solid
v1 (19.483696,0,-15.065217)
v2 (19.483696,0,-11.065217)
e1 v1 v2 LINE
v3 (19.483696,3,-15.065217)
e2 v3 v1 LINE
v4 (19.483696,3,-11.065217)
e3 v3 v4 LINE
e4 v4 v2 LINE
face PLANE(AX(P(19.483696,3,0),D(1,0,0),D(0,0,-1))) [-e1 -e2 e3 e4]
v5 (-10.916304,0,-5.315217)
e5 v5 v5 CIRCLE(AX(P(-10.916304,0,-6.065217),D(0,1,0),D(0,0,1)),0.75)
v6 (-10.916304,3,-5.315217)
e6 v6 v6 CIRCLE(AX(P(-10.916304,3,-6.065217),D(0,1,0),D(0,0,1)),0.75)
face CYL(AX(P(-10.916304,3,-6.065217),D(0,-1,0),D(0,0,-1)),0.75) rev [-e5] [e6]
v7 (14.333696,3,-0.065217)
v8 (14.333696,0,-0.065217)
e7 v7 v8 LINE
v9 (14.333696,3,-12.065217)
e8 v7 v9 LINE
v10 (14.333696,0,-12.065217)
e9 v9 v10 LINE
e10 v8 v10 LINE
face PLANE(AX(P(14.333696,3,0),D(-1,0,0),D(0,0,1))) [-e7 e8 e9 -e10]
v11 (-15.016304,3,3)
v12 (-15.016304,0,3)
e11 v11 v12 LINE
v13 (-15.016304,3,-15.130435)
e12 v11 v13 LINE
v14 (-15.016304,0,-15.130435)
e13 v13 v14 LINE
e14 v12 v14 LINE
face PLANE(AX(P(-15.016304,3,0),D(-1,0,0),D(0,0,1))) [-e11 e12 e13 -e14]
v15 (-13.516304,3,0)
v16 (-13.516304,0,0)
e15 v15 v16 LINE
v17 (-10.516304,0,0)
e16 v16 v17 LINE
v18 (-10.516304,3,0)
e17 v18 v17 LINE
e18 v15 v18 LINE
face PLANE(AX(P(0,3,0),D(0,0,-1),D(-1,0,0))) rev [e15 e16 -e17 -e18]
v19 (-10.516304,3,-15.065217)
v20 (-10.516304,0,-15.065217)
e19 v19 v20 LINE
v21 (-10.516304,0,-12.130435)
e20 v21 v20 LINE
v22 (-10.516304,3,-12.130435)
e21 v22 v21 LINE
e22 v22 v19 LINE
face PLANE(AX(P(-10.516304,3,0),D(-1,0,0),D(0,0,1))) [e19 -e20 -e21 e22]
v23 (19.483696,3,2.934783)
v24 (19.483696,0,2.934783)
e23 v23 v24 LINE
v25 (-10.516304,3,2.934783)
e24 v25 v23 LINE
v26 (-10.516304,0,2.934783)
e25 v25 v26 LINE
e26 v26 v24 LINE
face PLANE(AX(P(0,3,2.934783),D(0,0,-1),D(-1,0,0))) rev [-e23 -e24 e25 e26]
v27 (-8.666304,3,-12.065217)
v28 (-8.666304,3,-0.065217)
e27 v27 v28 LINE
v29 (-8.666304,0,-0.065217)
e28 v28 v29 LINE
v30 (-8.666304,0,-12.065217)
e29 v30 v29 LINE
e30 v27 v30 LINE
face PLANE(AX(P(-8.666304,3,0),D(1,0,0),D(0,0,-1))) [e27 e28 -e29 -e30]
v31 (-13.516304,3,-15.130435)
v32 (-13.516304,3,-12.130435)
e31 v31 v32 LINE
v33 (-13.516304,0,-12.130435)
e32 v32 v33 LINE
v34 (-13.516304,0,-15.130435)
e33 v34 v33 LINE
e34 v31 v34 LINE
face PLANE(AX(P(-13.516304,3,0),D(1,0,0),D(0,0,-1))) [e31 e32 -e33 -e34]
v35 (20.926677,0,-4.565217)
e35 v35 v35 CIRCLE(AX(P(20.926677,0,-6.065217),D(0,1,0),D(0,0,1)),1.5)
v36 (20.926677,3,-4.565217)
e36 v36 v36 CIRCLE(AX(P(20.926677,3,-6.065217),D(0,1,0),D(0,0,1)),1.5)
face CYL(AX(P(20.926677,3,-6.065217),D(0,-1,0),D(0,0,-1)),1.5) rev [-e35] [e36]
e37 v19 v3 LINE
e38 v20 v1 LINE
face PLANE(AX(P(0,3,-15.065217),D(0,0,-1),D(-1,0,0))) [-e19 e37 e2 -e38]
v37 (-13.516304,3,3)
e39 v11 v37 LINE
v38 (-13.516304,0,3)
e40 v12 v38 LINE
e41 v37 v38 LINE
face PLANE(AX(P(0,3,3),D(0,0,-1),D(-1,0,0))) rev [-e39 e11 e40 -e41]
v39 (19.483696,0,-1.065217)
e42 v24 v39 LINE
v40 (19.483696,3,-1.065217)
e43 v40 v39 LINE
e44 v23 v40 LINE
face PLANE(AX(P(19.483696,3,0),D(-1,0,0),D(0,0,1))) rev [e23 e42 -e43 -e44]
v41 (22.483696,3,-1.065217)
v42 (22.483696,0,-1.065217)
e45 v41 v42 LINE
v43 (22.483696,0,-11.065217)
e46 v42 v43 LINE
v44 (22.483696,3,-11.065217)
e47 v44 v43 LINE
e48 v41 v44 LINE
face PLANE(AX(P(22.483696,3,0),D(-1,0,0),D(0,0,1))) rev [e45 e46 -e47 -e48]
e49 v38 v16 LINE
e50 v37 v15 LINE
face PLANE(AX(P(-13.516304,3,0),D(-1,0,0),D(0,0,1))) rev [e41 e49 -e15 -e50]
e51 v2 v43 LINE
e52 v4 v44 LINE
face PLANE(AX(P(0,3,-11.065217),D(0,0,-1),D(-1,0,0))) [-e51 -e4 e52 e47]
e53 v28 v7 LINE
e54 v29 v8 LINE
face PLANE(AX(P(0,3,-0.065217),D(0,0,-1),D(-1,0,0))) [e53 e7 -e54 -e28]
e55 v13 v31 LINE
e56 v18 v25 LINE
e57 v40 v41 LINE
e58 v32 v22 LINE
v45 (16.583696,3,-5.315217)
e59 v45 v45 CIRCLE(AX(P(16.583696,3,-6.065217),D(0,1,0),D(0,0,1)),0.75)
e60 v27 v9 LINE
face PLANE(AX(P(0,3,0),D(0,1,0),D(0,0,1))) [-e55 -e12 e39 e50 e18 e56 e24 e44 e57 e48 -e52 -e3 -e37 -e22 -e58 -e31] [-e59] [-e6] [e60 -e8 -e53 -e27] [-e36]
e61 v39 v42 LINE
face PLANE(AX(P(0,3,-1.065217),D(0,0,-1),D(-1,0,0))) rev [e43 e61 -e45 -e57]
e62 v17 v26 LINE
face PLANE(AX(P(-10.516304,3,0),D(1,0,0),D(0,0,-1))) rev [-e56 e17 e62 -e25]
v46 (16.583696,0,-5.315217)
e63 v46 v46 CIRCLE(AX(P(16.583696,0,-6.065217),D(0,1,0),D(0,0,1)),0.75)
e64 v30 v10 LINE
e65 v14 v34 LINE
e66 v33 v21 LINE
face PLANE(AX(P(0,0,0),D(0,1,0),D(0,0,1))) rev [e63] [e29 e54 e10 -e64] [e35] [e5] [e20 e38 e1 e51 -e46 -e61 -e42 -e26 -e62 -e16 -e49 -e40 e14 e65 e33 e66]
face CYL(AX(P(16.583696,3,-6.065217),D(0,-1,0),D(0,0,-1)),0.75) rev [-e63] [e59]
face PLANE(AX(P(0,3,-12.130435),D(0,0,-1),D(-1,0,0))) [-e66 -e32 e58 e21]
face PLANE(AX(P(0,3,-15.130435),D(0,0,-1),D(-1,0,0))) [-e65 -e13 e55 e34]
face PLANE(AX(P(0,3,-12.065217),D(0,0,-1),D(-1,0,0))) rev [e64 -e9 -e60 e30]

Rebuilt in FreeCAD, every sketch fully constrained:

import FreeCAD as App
import Part
import Sketcher
from FreeCAD import Vector

doc = App.newDocument("Part")
body = doc.addObject("PartDesign::Body", "Body")

# Sketch on XZ plane
sketch1 = body.newObject("Sketcher::SketchObject", "Sketch")
sketch1.AttachmentSupport = (doc.getObject("XZ_Plane"), [""])
sketch1.MapMode = "FlatFace"
sketch1.addGeometry([
    Part.LineSegment(Vector(-15.016304, -15.130435, 0), Vector(-15.016304, 3, 0)),  # 0
    Part.LineSegment(Vector(-15.016304, 3, 0), Vector(-13.516304, 3, 0)),  # 1
    Part.LineSegment(Vector(-13.516304, 3, 0), Vector(-13.516304, 0, 0)),  # 2
    Part.LineSegment(Vector(-13.516304, 0, 0), Vector(-10.516304, 0, 0)),  # 3
    Part.LineSegment(Vector(-10.516304, 0, 0), Vector(-10.516304, 2.934783, 0)),  # 4
    Part.LineSegment(Vector(-10.516304, 2.934783, 0), Vector(19.483696, 2.934783, 0)),  # 5
    Part.LineSegment(Vector(19.483696, 2.934783, 0), Vector(19.483696, -1.065217, 0)),  # 6
    Part.LineSegment(Vector(19.483696, -1.065217, 0), Vector(22.483696, -1.065217, 0)),  # 7
    Part.LineSegment(Vector(22.483696, -1.065217, 0), Vector(22.483696, -11.065217, 0)),  # 8
    Part.LineSegment(Vector(22.483696, -11.065217, 0), Vector(19.483696, -11.065217, 0)),  # 9
    Part.LineSegment(Vector(19.483696, -11.065217, 0), Vector(19.483696, -15.065217, 0)),  # 10
    Part.LineSegment(Vector(19.483696, -15.065217, 0), Vector(-10.516304, -15.065217, 0)),  # 11
    Part.LineSegment(Vector(-10.516304, -15.065217, 0), Vector(-10.516304, -12.130435, 0)),  # 12
    Part.LineSegment(Vector(-10.516304, -12.130435, 0), Vector(-13.516304, -12.130435, 0)),  # 13
    Part.LineSegment(Vector(-13.516304, -12.130435, 0), Vector(-13.516304, -15.130435, 0)),  # 14
    Part.LineSegment(Vector(-13.516304, -15.130435, 0), Vector(-15.016304, -15.130435, 0)),  # 15
    Part.Circle(Vector(20.926677, -6.065217, 0), Vector(0, 0, 1), 1.5),  # 16
    Part.Circle(Vector(16.583696, -6.065217, 0), Vector(0, 0, 1), 0.75),  # 17
    Part.LineSegment(Vector(-8.666304, -0.065217, 0), Vector(-8.666304, -12.065217, 0)),  # 18
    Part.LineSegment(Vector(-8.666304, -12.065217, 0), Vector(14.333696, -12.065217, 0)),  # 19
    Part.LineSegment(Vector(14.333696, -12.065217, 0), Vector(14.333696, -0.065217, 0)),  # 20
    Part.LineSegment(Vector(14.333696, -0.065217, 0), Vector(-8.666304, -0.065217, 0)),  # 21
    Part.Circle(Vector(-10.916304, -6.065217, 0), Vector(0, 0, 1), 0.75),  # 22
], False)
sketch1.addConstraint([
    Sketcher.Constraint("Coincident", 0, 2, 1, 1),
    Sketcher.Constraint("Coincident", 1, 2, 2, 1),
    Sketcher.Constraint("Coincident", 2, 2, 3, 1),
    Sketcher.Constraint("Coincident", 3, 2, 4, 1),
    Sketcher.Constraint("Coincident", 4, 2, 5, 1),
    Sketcher.Constraint("Coincident", 5, 2, 6, 1),
    Sketcher.Constraint("Coincident", 6, 2, 7, 1),
    Sketcher.Constraint("Coincident", 7, 2, 8, 1),
    Sketcher.Constraint("Coincident", 8, 2, 9, 1),
    Sketcher.Constraint("Coincident", 9, 2, 10, 1),
    Sketcher.Constraint("Coincident", 10, 2, 11, 1),
    Sketcher.Constraint("Coincident", 11, 2, 12, 1),
    Sketcher.Constraint("Coincident", 12, 2, 13, 1),
    Sketcher.Constraint("Coincident", 13, 2, 14, 1),
    Sketcher.Constraint("Coincident", 14, 2, 15, 1),
    Sketcher.Constraint("Coincident", 15, 2, 0, 1),
    Sketcher.Constraint("Coincident", 18, 2, 19, 1),
    Sketcher.Constraint("Coincident", 19, 2, 20, 1),
    Sketcher.Constraint("Coincident", 20, 2, 21, 1),
    Sketcher.Constraint("Coincident", 21, 2, 18, 1),
    Sketcher.Constraint("Vertical", 0),
    Sketcher.Constraint("Horizontal", 1),
    Sketcher.Constraint("Vertical", 2),
    Sketcher.Constraint("Horizontal", 3),
    Sketcher.Constraint("Vertical", 4),
    Sketcher.Constraint("Horizontal", 5),
    Sketcher.Constraint("Vertical", 6),
    Sketcher.Constraint("Horizontal", 7),
    Sketcher.Constraint("Vertical", 8),
    Sketcher.Constraint("Horizontal", 9),
    Sketcher.Constraint("Vertical", 10),
    Sketcher.Constraint("Horizontal", 11),
    Sketcher.Constraint("Vertical", 12),
    Sketcher.Constraint("Horizontal", 13),
    Sketcher.Constraint("Vertical", 14),
    Sketcher.Constraint("Horizontal", 15),
    Sketcher.Constraint("Vertical", 18),
    Sketcher.Constraint("Horizontal", 19),
    Sketcher.Constraint("Vertical", 20),
    Sketcher.Constraint("Horizontal", 21),
    Sketcher.Constraint("Equal", 17, 22),
    Sketcher.Constraint("PointOnObject", 2, 2, -1),
    Sketcher.Constraint("Horizontal", 16, 3, 17, 3),
    Sketcher.Constraint("Horizontal", 17, 3, 22, 3),
    Sketcher.Constraint("Vertical", 6, 2, 9, 2),
    Sketcher.Constraint("Vertical", 4, 2, 11, 2),
    Sketcher.Constraint("Vertical", 2, 2, 13, 2),
    Sketcher.Constraint("Equal", 3, 7),
    Sketcher.Constraint("Equal", 13, 2),
    Sketcher.Constraint("Equal", 6, 10),
    Sketcher.Constraint("Equal", 4, 12),
    Sketcher.Constraint("Equal", 2, 14),
    Sketcher.Constraint("Diameter", 16, 3.0),
    Sketcher.Constraint("Diameter", 17, 1.5),
    Sketcher.Constraint("DistanceX", 3, 1, 3, 2, 3.0),
    Sketcher.Constraint("DistanceX", 5, 1, 5, 2, 30.0),
    Sketcher.Constraint("DistanceX", 19, 1, 19, 2, 23.0),
    Sketcher.Constraint("DistanceY", 6, 2, 6, 1, 4.0),
    Sketcher.Constraint("DistanceY", 8, 2, 8, 1, 10.0),
    Sketcher.Constraint("DistanceY", 18, 2, 18, 1, 12.0),
    Sketcher.Constraint("DistanceX", 1, 1, 1, 2, 1.5),
    Sketcher.Constraint("DistanceY", 22, 3, 4, 2, 9.0),
    Sketcher.Constraint("DistanceY", 11, 2, 18, 2, 3.0),
    Sketcher.Constraint("DistanceX", 22, 3, 17, 3, 27.5),
    Sketcher.Constraint("DistanceX", 0, 2, 22, 3, 4.1),
    Sketcher.Constraint("DistanceX", 12, 2, 18, 2, 1.85),
    Sketcher.Constraint("DistanceY", 0, 1, 0, 2, 18.130435),
    Sketcher.Constraint("DistanceX", 17, 3, 16, 3, 4.342981),
    Sketcher.Constraint("DistanceX", -1, 1, 16, 3, 20.926677),
])
pad1 = body.newObject("PartDesign::Pad", "Pad")
pad1.Profile = sketch1
pad1.Length = 3
pad1.Reversed = True

doc.recompute()
